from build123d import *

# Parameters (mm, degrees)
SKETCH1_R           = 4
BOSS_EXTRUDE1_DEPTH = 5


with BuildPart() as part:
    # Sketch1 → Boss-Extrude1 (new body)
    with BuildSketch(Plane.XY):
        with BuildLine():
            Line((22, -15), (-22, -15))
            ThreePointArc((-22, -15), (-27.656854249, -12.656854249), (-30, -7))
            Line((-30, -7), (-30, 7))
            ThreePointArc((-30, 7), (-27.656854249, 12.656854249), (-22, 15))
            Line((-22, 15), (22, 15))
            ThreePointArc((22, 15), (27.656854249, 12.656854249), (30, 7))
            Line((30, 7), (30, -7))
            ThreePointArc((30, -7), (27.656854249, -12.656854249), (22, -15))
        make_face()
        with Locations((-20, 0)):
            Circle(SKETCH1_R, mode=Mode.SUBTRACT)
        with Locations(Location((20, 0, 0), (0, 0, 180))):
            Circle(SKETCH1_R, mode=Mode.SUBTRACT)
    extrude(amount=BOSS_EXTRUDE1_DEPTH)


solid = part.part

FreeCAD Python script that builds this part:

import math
import FreeCAD as App
import Part
import Sketcher

V = App.Vector

doc = App.newDocument("Part")
params = doc.addObject("Spreadsheet::Sheet", "Params")
for row, (alias, value) in enumerate([
    ("sketch1_diameter", "8 mm"),
    ("sketch1_radius", "8 mm"),
    ("sketch1_width", "44 mm"),
    ("sketch1_height", "14 mm"),
    ("pad1_length", "5 mm"),
], start=1):
    params.set(f"A{row}", alias)
    params.set(f"B{row}", "=" + value)
    params.setAlias(f"B{row}", alias)

body = doc.addObject("PartDesign::Body", "Body")

sketch1 = body.newObject("Sketcher::SketchObject", "Sketch")
sketch1.AttachmentSupport = (doc.getObject("XY_Plane"), [""])
sketch1.MapMode = "FlatFace"
sketch1.addGeometry(Part.LineSegment(V(-22, -15, 0), V(22, -15, 0)), False)
sketch1.addGeometry(Part.ArcOfCircle(Part.Circle(V(22, -7, 0), V(0, 0, 1), 8), math.radians(-90), math.radians(0)), False)
sketch1.addGeometry(Part.LineSegment(V(30, -7, 0), V(30, 7, 0)), False)
sketch1.addGeometry(Part.ArcOfCircle(Part.Circle(V(22, 7, 0), V(0, 0, 1), 8), math.radians(0), math.radians(90)), False)
sketch1.addGeometry(Part.LineSegment(V(22, 15, 0), V(-22, 15, 0)), False)
sketch1.addGeometry(Part.ArcOfCircle(Part.Circle(V(-22, 7, 0), V(0, 0, 1), 8), math.radians(90), math.radians(180)), False)
sketch1.addGeometry(Part.LineSegment(V(-30, 7, 0), V(-30, -7, 0)), False)
sketch1.addGeometry(Part.ArcOfCircle(Part.Circle(V(-22, -7, 0), V(0, 0, 1), 8), math.radians(-180), math.radians(-90)), False)
sketch1.addGeometry(Part.Circle(V(20, 0, 0), V(0, 0, 1), 4), False)
sketch1.addGeometry(Part.Circle(V(-20, 0, 0), V(0, 0, 1), 4), False)
sketch1.addConstraint(Sketcher.Constraint("Tangent", 0, 2, 1, 1))
sketch1.addConstraint(Sketcher.Constraint("Tangent", 1, 2, 2, 1))
sketch1.addConstraint(Sketcher.Constraint("Tangent", 2, 2, 3, 1))
sketch1.addConstraint(Sketcher.Constraint("Tangent", 3, 2, 4, 1))
sketch1.addConstraint(Sketcher.Constraint("Tangent", 4, 2, 5, 1))
sketch1.addConstraint(Sketcher.Constraint("Tangent", 5, 2, 6, 1))
sketch1.addConstraint(Sketcher.Constraint("Tangent", 6, 2, 7, 1))
sketch1.addConstraint(Sketcher.Constraint("Tangent", 7, 2, 0, 1))
sketch1.addConstraint(Sketcher.Constraint("Horizontal", 0))
sketch1.addConstraint(Sketcher.Constraint("Vertical", 2))
sketch1.addConstraint(Sketcher.Constraint("Horizontal", 4))
sketch1.addConstraint(Sketcher.Constraint("Vertical", 6))
sketch1.addConstraint(Sketcher.Constraint("Equal", 1, 3))
sketch1.addConstraint(Sketcher.Constraint("Equal", 3, 5))
sketch1.addConstraint(Sketcher.Constraint("Equal", 5, 7))
sketch1.addConstraint(Sketcher.Constraint("Equal", 8, 9))
sketch1.addConstraint(Sketcher.Constraint("Symmetric", 1, 3, 5, 3, -1, 1))
sketch1.addConstraint(Sketcher.Constraint("Symmetric", 8, 3, 9, 3, -1, 1))
sketch1.addConstraint(Sketcher.Constraint("PointOnObject", 8, 3, -1))
sketch1.addConstraint(Sketcher.Constraint("Diameter", 8, 8.0))
sketch1.addConstraint(Sketcher.Constraint("Radius", 1, 8.0))
sketch1.addConstraint(Sketcher.Constraint("DistanceX", 0, 1, 0, 2, 44.0))
sketch1.addConstraint(Sketcher.Constraint("DistanceY", 2, 1, 2, 2, 14.0))
sketch1.addConstraint(Sketcher.Constraint("DistanceX", -1, 1, 8, 3, 20.0))
sketch1.setExpression("Constraints[19]", "Params.sketch1_diameter")
sketch1.setExpression("Constraints[20]", "Params.sketch1_radius")
sketch1.setExpression("Constraints[21]", "Params.sketch1_width")
sketch1.setExpression("Constraints[22]", "Params.sketch1_height")
pad1 = body.newObject("PartDesign::Pad", "Pad")
pad1.Profile = sketch1
pad1.setExpression("Length", "Params.pad1_length")

doc.recompute()
